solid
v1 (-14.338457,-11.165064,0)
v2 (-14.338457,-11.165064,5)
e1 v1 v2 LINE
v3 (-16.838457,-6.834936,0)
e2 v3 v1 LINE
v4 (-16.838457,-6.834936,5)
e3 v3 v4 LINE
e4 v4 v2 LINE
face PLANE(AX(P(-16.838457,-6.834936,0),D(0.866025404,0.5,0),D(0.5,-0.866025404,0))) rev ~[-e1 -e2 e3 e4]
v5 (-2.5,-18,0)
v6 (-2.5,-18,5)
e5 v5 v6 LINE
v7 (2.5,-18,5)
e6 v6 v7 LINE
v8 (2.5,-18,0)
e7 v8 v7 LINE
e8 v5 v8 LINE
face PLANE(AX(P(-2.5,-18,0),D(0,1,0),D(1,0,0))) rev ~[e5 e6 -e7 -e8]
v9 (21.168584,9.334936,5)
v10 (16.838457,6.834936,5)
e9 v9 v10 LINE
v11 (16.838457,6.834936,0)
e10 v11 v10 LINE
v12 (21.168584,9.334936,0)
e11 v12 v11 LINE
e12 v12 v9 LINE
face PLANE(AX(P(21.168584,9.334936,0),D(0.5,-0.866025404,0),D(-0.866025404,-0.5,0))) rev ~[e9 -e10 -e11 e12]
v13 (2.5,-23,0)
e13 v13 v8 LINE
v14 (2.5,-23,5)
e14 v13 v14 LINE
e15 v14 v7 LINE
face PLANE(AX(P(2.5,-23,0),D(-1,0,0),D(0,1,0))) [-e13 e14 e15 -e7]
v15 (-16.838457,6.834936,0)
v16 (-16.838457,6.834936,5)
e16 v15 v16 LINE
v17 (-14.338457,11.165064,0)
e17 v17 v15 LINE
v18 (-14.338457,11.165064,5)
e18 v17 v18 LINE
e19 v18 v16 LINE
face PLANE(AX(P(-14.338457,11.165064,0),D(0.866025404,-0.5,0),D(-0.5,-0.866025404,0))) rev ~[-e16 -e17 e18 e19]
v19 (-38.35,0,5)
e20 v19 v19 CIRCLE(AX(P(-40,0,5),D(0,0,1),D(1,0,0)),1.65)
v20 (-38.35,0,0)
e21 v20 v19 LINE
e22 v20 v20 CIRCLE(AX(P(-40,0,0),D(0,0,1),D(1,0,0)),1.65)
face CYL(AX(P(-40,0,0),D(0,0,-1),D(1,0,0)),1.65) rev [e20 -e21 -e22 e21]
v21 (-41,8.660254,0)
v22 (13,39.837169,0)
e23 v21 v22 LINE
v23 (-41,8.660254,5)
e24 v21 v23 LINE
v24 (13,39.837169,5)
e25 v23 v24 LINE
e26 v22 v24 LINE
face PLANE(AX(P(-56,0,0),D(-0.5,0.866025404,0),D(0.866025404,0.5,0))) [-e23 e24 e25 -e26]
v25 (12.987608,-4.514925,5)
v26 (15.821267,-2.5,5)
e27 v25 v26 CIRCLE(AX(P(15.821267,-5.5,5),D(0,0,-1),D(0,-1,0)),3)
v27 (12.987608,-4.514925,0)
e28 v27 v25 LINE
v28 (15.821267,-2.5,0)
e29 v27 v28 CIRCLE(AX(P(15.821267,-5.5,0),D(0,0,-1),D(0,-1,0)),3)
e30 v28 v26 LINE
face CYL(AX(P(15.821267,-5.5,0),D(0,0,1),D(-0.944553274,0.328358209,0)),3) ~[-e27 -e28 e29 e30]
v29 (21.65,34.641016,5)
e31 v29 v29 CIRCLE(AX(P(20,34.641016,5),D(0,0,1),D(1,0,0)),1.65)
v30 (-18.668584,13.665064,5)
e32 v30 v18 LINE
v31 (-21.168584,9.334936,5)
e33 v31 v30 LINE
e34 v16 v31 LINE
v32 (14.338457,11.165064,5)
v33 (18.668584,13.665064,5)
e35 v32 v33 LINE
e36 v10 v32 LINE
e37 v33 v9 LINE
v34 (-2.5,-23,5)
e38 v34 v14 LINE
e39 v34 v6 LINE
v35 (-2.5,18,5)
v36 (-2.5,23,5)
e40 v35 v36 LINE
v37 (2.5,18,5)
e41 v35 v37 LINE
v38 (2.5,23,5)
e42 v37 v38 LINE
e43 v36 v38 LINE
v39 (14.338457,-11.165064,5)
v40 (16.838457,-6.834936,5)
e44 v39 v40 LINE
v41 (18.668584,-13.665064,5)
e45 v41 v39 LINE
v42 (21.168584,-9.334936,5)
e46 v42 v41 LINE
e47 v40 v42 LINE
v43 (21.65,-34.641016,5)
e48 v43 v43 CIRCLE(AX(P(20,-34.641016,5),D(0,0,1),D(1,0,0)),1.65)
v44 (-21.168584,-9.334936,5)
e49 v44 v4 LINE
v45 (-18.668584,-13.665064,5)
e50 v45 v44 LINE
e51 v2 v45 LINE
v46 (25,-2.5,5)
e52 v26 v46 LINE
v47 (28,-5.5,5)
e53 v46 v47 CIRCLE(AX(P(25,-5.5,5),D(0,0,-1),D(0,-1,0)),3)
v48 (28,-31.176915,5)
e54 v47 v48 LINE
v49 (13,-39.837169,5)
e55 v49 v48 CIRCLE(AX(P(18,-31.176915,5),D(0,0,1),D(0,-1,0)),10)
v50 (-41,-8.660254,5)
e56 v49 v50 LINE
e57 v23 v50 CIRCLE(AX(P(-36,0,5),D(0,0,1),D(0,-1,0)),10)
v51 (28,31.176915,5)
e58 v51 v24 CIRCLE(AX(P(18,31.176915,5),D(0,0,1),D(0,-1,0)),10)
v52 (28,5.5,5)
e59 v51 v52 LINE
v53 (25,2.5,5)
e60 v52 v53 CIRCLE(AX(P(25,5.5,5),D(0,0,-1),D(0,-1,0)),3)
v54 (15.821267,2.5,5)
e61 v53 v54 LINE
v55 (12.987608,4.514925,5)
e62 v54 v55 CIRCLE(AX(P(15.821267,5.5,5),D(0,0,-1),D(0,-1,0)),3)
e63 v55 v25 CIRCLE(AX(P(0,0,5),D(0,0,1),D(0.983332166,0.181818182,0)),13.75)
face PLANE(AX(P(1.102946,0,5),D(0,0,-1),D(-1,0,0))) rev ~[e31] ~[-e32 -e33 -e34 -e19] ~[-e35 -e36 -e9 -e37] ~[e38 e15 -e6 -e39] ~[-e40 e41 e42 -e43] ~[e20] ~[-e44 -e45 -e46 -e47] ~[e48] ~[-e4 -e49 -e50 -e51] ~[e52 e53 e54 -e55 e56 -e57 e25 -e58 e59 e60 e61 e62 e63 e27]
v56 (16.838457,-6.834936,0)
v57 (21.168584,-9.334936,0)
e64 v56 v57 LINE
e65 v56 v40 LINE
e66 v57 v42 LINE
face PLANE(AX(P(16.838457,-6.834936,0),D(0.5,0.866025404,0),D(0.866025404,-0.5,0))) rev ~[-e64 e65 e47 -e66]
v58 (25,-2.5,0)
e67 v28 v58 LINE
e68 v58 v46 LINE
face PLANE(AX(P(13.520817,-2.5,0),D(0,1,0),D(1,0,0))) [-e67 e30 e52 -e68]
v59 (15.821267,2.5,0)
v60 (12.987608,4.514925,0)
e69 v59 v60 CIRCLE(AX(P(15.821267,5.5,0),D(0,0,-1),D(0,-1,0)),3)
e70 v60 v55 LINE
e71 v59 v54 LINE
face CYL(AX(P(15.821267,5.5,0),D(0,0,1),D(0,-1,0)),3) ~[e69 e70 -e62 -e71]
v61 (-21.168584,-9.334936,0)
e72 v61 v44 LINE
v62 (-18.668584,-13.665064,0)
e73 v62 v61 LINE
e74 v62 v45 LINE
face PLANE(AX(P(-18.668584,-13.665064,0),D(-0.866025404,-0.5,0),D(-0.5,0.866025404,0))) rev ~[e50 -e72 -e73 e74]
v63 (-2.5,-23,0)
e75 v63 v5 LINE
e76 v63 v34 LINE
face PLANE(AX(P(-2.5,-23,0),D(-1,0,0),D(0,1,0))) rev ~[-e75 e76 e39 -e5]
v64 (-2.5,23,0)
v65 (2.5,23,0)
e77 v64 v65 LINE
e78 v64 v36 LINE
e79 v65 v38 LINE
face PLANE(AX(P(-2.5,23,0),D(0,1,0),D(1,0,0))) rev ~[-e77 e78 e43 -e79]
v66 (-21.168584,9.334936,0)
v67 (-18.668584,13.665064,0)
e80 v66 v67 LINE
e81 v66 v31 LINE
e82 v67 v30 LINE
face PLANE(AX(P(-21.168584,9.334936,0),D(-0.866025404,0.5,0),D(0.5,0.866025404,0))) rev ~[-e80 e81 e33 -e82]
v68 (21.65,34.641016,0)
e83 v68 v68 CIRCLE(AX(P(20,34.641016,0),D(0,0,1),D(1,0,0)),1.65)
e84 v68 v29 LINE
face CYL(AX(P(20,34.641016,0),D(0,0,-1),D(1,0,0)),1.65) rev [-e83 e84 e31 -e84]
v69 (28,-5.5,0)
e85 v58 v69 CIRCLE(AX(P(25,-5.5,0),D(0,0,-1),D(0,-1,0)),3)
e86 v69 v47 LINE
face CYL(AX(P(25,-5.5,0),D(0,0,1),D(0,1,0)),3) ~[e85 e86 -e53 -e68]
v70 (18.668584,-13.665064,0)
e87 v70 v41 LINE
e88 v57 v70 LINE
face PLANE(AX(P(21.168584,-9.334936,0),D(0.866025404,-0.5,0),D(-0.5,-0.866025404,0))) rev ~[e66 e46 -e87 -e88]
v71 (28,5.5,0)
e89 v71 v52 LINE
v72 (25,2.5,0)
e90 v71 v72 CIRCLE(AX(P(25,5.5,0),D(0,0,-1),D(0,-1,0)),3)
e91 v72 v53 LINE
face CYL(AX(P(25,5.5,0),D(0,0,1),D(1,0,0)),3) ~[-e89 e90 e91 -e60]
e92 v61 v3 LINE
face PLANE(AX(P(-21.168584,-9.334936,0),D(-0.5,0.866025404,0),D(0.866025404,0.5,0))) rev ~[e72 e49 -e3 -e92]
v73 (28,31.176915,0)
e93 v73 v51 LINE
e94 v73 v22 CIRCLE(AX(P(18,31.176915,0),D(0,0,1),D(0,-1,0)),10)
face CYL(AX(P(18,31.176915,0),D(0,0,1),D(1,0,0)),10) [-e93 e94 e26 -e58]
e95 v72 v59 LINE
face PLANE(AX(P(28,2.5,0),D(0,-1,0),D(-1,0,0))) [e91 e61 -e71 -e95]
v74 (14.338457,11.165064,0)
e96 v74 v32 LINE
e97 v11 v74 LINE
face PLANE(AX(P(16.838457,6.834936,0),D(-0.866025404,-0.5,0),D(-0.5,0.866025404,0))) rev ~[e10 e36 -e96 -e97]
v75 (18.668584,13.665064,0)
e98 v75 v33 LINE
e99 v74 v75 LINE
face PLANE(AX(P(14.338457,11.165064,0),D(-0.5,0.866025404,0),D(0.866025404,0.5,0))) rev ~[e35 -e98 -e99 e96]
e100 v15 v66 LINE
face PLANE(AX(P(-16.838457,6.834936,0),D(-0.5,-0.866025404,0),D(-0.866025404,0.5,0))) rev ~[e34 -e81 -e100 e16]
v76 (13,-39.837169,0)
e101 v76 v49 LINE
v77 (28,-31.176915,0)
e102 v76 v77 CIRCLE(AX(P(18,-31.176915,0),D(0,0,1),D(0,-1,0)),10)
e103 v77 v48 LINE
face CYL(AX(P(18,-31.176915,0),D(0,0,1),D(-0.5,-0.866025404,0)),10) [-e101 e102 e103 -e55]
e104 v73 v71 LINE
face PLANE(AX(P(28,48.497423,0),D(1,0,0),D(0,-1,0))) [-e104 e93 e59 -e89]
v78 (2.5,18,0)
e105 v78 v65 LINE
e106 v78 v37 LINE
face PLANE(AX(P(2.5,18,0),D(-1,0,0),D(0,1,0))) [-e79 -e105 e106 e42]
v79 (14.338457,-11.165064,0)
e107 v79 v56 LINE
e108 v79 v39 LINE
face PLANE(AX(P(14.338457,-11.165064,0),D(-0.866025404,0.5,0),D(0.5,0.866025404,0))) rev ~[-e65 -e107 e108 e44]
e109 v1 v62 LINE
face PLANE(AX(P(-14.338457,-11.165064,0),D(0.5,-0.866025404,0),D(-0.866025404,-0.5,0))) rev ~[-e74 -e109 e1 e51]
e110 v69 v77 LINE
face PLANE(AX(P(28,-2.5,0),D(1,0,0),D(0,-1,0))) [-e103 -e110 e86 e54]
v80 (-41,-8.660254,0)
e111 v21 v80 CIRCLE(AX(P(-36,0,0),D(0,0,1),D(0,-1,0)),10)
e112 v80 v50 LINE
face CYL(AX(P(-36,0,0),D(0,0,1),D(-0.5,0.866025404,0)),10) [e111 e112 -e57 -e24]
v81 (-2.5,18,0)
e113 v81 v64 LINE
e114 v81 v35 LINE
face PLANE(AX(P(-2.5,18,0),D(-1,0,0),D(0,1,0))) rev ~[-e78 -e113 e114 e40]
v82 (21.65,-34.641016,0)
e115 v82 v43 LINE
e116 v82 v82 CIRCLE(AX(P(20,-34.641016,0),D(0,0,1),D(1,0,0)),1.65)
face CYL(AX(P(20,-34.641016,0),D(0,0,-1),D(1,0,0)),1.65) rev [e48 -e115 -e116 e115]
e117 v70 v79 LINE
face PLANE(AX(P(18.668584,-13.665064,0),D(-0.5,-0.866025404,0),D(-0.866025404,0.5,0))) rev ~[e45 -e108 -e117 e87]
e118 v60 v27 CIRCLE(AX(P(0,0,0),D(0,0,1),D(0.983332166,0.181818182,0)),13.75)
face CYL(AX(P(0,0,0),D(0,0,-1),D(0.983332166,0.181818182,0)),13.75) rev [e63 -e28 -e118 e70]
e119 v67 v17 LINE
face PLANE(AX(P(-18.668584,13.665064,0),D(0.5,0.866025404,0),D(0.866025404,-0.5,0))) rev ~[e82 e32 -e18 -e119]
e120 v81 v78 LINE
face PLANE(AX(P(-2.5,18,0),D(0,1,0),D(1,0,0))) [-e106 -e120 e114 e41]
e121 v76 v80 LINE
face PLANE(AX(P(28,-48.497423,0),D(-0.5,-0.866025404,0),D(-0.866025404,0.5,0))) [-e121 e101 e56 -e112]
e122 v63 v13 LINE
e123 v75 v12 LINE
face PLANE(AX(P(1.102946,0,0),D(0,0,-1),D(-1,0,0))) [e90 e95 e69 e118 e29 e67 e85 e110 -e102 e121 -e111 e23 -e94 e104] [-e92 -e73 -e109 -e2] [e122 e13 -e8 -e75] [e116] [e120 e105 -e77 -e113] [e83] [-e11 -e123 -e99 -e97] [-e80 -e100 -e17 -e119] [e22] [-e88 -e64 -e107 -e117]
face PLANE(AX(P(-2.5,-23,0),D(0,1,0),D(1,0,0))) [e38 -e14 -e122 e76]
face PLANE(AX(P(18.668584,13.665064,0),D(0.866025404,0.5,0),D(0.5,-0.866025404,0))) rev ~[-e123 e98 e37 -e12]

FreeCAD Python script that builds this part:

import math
import FreeCAD as App
import Part
import Sketcher

V = App.Vector
Q = App.Units.Quantity


def edges_at(feature, points):
    """Names of the edges that pass closest to the given points."""
    edges = feature.Shape.Edges
    near = lambda p: min(range(len(edges)), key=lambda i: edges[i].distToShape(Part.Vertex(*p))[0])
    return sorted({f"Edge{near(p) + 1}" for p in points})


def add_polygon(sketch, points):
    """Adds a closed chain of lines whose ends are joined by coincident constraints."""
    first, n = sketch.GeometryCount, len(points)
    for a, b in zip(points, points[1:] + points[:1]):
        sketch.addGeometry(Part.LineSegment(App.Vector(*a, 0), App.Vector(*b, 0)), False)
    for i in range(n):
        sketch.addConstraint(Sketcher.Constraint("Coincident", first + i, 2, first + (i + 1) % n, 1))

doc = App.newDocument("Part")
body = doc.addObject("PartDesign::Body", "Body")

# Sketch on XY plane
sketch1 = body.newObject("Sketcher::SketchObject", "Sketch")
sketch1.AttachmentSupport = (doc.getObject("XY_Plane"), [""])
sketch1.MapMode = "FlatFace"
sketch1.addGeometry(Part.LineSegment(V(13.5, 2.5, 0), V(28, 2.5, 0)), False)  # 0
sketch1.addGeometry(Part.LineSegment(V(28, 2.5, 0), V(28, 48.5, 0)), False)  # 1
sketch1.addGeometry(Part.LineSegment(V(28, 48.5, 0), V(-56, 0, 0)), False)  # 2
sketch1.addGeometry(Part.LineSegment(V(-56, 0, 0), V(28, -48.5, 0)), False)  # 3
sketch1.addGeometry(Part.LineSegment(V(28, -48.5, 0), V(28, -2.5, 0)), False)  # 4
sketch1.addGeometry(Part.LineSegment(V(28, -2.5, 0), V(13.5, -2.5, 0)), False)  # 5
sketch1.addGeometry(Part.ArcOfCircle(Part.Circle(V(0, 0, 0), V(0, 0, 1), 13.8), math.radians(10), math.radians(350)), False)  # 6
sketch1.addGeometry(Part.Circle(V(20, -34.6, 0), V(0, 0, 1), 1.6), False)  # 7
add_polygon(sketch1, [(-2.5, -23), (-2.5, -18), (2.5, -18), (2.5, -23)])  # lines 8-11
add_polygon(sketch1, [(18.7, -13.7), (14.3, -11.2), (16.8, -6.8), (21.2, -9.3)])  # lines 12-15
add_polygon(sketch1, [(-21.2, -9.3), (-16.8, -6.8), (-14.3, -11.2), (-18.7, -13.7)])  # lines 16-19
add_polygon(sketch1, [(21.2, 9.3), (16.8, 6.8), (14.3, 11.2), (18.7, 13.7)])  # lines 20-23
sketch1.addGeometry(Part.Circle(V(20, 34.6, 0), V(0, 0, 1), 1.6), False)  # 24
add_polygon(sketch1, [(-2.5, 18), (-2.5, 23), (2.5, 23), (2.5, 18)])  # lines 25-28
add_polygon(sketch1, [(-18.7, 13.7), (-14.3, 11.2), (-16.8, 6.8), (-21.2, 9.3)])  # lines 29-32
sketch1.addGeometry(Part.Circle(V(-40, 0, 0), V(0, 0, 1), 1.6), False)  # 33
sketch1.addConstraint([
    Sketcher.Constraint("Coincident", 0, 2, 1, 1),
    Sketcher.Constraint("Coincident", 1, 2, 2, 1),
    Sketcher.Constraint("Coincident", 2, 2, 3, 1),
    Sketcher.Constraint("Coincident", 3, 2, 4, 1),
    Sketcher.Constraint("Coincident", 4, 2, 5, 1),
    Sketcher.Constraint("Coincident", 5, 2, 6, 2),
    Sketcher.Constraint("Coincident", 6, 1, 0, 1),
    Sketcher.Constraint("Horizontal", 0),
    Sketcher.Constraint("Vertical", 1),
    Sketcher.Constraint("Vertical", 4),
    Sketcher.Constraint("Horizontal", 5),
    Sketcher.Constraint("Vertical", 8),
    Sketcher.Constraint("Horizontal", 9),
    Sketcher.Constraint("Vertical", 10),
    Sketcher.Constraint("Horizontal", 11),
    Sketcher.Constraint("Vertical", 25),
    Sketcher.Constraint("Horizontal", 26),
    Sketcher.Constraint("Vertical", 27),
    Sketcher.Constraint("Horizontal", 28),
    Sketcher.Constraint("Coincident", 6, 3, -1, 1),
    Sketcher.Constraint("Equal", 7, 24),
    Sketcher.Constraint("Equal", 24, 33),
    Sketcher.Constraint("Symmetric", 16, 2, 20, 2, -1, 1),
    Sketcher.Constraint("Symmetric", 17, 2, 21, 2, -1, 1),
    Sketcher.Constraint("Symmetric", 18, 2, 22, 2, -1, 1),
    Sketcher.Constraint("Symmetric", 19, 2, 23, 2, -1, 1),
    Sketcher.Constraint("Symmetric", 10, 2, 25, 2, -1, 1),
    Sketcher.Constraint("Symmetric", 8, 2, 27, 2, -1, 1),
    Sketcher.Constraint("Symmetric", 12, 2, 29, 2, -1, 1),
    Sketcher.Constraint("Symmetric", 13, 2, 30, 2, -1, 1),
    Sketcher.Constraint("Symmetric", 14, 2, 31, 2, -1, 1),
    Sketcher.Constraint("Symmetric", 15, 2, 32, 2, -1, 1),
    Sketcher.Constraint("Symmetric", 13, 2, 16, 2, -2),
    Sketcher.Constraint("Symmetric", 12, 2, 17, 2, -2),
    Sketcher.Constraint("Symmetric", 15, 2, 18, 2, -2),
    Sketcher.Constraint("Symmetric", 14, 2, 19, 2, -2),
    Sketcher.Constraint("Symmetric", 7, 3, 24, 3, -1),
    Sketcher.Constraint("Symmetric", 1, 2, 3, 2, -1),
    Sketcher.Constraint("PointOnObject", 33, 3, -1),
    Sketcher.Constraint("PointOnObject", 2, 2, -1),
    Sketcher.Constraint("Parallel", 3, 12),
    Sketcher.Constraint("Perpendicular", 12, 13),
    Sketcher.Constraint("Perpendicular", 13, 14),
    Sketcher.Constraint("Perpendicular", 14, 15),
    Sketcher.Constraint("Vertical", 5, 2, 6, 1),
    Sketcher.Constraint("Vertical", 11, 2, 25, 2),
    Sketcher.Constraint("Equal", 28, 8),
    Sketcher.Constraint("Equal", 12, 13),
    Sketcher.Constraint("Diameter", 7, 3.3),
    Sketcher.Constraint("DistanceX", 9, 1, 9, 2, 5.0),
    Sketcher.Constraint("Angle", 2, Q("-150 deg")),
    Sketcher.Constraint("Radius", 6, 13.75),
    Sketcher.Constraint("Distance", 12, 5.0),
    Sketcher.Constraint("DistanceX", -1, 1, 7, 3, 20.0),
    Sketcher.Constraint("DistanceX", 33, 3, -1, 1, 40.0),
    Sketcher.Constraint("DistanceX", -1, 1, 0, 2, 28.0),
    Sketcher.Constraint("DistanceX", 2, 2, -1, 1, 56.0),
    Sketcher.Constraint("DistanceY", 8, 2, -1, 1, 18.0),
    Sketcher.Constraint("DistanceY", 4, 2, 0, 2, 5.0),
    Sketcher.Constraint("DistanceY", 16, 2, 29, 2, 18.0),
    Sketcher.Constraint("DistanceY", 7, 3, 1, 2, 83.138439),
    Sketcher.Constraint("DistanceX", 5, 2, 12, 2, 0.81764),
])
pad1 = body.newObject("PartDesign::Pad", "Pad")
pad1.Profile = sketch1
pad1.Length = 5
doc.recompute()

fillet = body.newObject("PartDesign::Fillet", "Fillet")
fillet.Base = (pad1, edges_at(pad1, [(28, -48.497, 2.5), (-56, 0, 2.5), (28, 48.497, 2.5)]))
fillet.Radius = 10
doc.recompute()

fillet2 = body.newObject("PartDesign::Fillet", "Fillet001")
fillet2.Base = (fillet, edges_at(fillet, [
    (28, 2.5, 2.5),
    (13.521, 2.5, 2.5),
    (13.521, -2.5, 2.5),
    (28, -2.5, 2.5),
]))
fillet2.Radius = 3

doc.recompute()
